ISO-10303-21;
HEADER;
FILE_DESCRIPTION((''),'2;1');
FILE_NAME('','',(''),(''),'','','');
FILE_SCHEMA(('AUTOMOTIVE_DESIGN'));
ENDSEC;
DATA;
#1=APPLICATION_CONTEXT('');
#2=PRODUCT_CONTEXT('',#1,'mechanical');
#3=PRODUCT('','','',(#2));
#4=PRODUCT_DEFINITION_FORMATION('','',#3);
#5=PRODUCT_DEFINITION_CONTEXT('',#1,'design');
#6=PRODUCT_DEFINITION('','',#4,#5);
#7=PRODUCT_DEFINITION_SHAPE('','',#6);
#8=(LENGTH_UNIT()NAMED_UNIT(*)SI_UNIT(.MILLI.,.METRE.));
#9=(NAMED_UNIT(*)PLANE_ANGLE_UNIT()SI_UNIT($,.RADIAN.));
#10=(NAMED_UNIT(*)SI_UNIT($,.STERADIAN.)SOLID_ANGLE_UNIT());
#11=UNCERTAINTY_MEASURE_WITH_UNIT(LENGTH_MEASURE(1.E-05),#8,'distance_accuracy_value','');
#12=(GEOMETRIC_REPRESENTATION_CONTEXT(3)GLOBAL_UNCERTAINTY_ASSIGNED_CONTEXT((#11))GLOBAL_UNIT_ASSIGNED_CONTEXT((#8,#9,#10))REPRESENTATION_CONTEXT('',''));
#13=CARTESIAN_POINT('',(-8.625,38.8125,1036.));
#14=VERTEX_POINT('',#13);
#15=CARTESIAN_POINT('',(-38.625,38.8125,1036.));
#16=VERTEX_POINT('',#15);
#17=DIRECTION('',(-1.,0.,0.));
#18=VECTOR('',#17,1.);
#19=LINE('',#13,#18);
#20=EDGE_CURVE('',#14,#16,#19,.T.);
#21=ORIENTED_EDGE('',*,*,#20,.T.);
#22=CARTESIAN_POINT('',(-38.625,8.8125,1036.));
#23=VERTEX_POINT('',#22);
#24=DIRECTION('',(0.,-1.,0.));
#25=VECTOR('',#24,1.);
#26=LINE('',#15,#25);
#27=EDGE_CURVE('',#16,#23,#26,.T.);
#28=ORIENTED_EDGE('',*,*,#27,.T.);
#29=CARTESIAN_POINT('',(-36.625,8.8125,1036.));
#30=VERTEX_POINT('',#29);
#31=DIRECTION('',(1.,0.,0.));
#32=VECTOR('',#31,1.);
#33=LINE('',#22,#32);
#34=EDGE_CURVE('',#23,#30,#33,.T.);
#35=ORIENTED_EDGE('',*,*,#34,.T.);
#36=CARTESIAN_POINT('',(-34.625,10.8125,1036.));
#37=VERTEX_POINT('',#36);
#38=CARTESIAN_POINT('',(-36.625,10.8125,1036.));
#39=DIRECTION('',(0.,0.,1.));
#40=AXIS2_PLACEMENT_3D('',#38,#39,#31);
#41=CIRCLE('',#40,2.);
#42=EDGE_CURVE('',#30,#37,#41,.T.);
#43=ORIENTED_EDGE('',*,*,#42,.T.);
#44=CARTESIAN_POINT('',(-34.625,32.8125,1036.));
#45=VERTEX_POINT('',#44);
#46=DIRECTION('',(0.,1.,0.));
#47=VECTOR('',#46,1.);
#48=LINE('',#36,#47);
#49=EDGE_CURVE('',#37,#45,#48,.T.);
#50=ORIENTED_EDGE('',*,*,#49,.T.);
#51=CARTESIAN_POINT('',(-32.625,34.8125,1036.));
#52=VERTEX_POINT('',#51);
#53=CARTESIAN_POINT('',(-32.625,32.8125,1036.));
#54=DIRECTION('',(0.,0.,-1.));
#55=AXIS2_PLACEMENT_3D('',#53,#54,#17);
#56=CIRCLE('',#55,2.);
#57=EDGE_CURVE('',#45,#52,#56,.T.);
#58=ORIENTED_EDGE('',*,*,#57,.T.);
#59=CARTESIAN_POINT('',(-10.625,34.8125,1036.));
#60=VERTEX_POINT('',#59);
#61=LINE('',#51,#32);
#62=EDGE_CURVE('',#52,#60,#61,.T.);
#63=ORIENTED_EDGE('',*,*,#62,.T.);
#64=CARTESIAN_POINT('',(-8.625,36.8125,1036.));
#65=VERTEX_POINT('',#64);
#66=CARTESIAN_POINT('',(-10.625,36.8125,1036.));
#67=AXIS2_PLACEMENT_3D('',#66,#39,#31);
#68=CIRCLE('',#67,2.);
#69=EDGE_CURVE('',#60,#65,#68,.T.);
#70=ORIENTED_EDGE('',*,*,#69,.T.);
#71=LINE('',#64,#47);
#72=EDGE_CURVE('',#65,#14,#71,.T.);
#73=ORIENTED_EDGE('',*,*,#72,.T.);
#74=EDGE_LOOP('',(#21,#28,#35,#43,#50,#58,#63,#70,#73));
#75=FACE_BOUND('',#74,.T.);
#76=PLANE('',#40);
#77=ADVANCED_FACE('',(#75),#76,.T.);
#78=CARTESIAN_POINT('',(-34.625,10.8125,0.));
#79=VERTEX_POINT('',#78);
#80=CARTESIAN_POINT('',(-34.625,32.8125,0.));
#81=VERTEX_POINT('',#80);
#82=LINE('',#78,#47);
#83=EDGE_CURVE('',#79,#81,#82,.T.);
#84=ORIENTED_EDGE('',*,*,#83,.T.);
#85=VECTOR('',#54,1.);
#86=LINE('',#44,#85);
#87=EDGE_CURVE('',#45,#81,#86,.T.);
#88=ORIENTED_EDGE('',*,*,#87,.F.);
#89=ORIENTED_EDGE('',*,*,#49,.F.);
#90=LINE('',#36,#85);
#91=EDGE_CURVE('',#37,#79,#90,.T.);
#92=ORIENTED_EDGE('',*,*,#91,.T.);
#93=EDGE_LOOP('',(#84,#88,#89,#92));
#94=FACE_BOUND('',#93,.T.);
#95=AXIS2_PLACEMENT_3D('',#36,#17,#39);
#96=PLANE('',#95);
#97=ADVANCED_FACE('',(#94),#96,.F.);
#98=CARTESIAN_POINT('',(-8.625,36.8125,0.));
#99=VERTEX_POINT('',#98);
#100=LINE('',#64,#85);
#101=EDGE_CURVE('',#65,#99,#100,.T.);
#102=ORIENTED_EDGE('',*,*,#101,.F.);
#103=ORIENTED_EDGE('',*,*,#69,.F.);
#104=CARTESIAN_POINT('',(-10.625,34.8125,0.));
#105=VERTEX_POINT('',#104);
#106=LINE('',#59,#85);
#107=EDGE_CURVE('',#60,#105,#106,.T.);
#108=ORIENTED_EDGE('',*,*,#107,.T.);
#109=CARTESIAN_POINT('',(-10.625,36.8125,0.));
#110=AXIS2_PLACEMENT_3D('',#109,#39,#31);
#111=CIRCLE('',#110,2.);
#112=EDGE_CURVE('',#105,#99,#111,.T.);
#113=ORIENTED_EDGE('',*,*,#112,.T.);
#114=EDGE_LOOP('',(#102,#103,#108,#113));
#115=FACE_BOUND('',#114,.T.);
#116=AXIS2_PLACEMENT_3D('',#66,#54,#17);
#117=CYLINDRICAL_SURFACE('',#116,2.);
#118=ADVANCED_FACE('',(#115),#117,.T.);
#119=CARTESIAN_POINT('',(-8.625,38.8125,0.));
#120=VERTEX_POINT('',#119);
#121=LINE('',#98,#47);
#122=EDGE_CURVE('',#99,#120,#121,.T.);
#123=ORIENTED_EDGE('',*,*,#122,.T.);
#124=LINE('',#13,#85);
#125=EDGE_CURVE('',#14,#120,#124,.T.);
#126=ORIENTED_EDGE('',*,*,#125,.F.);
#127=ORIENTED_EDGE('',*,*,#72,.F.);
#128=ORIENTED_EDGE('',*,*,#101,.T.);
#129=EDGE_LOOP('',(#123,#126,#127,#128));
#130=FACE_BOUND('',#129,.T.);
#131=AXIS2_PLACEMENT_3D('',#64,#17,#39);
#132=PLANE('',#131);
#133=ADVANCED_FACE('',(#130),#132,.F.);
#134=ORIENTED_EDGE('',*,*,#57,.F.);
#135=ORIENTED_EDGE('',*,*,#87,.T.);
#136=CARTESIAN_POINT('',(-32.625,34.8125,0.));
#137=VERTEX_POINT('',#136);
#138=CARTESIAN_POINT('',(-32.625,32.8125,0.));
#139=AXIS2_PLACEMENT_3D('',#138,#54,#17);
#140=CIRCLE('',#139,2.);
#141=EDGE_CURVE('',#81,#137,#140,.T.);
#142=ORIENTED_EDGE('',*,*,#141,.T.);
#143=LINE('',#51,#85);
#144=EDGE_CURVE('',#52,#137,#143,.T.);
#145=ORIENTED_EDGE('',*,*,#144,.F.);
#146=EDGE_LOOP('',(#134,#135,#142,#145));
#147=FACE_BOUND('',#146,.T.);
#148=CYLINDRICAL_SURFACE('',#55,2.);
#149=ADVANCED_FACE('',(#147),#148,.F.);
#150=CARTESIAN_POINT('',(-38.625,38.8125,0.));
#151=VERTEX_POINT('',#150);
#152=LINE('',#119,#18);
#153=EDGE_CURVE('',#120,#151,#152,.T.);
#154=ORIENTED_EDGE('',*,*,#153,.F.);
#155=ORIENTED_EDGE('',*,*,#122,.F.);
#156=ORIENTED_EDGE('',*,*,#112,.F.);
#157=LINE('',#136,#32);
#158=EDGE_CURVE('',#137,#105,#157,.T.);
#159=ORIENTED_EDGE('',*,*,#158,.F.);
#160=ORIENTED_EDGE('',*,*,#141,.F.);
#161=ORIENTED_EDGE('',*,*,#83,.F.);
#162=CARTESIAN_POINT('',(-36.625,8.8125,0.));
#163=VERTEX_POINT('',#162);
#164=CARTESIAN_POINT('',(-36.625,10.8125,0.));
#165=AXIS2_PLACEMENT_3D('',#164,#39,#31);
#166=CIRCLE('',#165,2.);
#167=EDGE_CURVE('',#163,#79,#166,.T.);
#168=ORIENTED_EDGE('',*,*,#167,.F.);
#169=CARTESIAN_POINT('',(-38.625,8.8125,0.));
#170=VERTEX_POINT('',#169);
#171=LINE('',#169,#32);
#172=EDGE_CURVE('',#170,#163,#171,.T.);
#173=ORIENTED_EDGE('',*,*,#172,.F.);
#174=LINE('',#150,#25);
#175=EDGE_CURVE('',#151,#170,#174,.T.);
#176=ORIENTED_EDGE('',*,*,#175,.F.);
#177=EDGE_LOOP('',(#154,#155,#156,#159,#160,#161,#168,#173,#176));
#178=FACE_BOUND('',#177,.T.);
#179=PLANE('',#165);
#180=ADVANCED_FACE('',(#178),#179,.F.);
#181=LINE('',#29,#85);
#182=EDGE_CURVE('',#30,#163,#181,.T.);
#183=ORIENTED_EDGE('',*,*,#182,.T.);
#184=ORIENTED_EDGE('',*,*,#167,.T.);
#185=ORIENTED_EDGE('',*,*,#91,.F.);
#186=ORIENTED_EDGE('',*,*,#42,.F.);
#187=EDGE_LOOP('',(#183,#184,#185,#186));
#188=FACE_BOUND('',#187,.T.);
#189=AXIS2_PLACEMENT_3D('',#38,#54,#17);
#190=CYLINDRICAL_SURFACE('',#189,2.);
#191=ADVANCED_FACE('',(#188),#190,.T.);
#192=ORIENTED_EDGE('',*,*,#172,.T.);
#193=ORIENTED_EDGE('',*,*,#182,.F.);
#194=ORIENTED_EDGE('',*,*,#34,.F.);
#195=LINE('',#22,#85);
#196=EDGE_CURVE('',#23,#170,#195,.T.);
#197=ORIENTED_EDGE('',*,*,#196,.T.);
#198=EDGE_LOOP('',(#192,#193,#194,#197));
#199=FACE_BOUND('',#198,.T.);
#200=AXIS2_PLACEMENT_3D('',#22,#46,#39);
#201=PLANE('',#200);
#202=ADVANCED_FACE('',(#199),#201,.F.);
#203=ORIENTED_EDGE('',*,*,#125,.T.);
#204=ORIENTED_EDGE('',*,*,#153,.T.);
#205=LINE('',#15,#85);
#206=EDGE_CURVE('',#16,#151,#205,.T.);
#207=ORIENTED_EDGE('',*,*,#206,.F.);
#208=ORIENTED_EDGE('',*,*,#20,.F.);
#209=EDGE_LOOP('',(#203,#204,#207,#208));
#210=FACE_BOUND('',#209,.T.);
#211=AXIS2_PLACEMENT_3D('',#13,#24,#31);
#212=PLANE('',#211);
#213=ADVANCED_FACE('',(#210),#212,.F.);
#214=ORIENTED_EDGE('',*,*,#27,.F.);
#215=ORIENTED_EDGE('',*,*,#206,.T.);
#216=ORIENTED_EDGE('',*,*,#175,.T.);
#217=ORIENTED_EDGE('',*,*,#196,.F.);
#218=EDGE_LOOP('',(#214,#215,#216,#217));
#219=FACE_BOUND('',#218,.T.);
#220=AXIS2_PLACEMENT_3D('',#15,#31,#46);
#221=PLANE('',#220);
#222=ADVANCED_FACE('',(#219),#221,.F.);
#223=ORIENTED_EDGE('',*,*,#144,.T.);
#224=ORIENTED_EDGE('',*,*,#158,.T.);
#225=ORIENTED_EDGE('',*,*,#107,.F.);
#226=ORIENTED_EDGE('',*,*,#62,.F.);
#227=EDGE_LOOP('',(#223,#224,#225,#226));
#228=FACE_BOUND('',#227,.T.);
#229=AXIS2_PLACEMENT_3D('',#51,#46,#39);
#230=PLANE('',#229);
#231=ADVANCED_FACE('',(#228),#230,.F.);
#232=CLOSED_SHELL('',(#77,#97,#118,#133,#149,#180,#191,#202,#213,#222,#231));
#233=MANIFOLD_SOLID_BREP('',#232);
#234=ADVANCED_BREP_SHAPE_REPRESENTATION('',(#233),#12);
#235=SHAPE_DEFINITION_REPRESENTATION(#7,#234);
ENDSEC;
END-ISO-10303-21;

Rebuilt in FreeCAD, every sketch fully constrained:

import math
import FreeCAD as App
import Part
import Sketcher

V = App.Vector
Q = App.Units.Quantity

doc = App.newDocument("Part")
params = doc.addObject("Spreadsheet::Sheet", "Params")
for row, (alias, value) in enumerate([
    ("sketch1_radius", "2 mm"),
    ("sketch1_width", "30 mm"),
    ("sketch1_width2", "2 mm"),
    ("pad1_length", "1036 mm"),
], start=1):
    params.set(f"A{row}", alias)
    params.set(f"B{row}", "=" + value)
    params.setAlias(f"B{row}", alias)

body = doc.addObject("PartDesign::Body", "Body")

# Sketch on XY plane
sketch1 = body.newObject("Sketcher::SketchObject", "Sketch")
sketch1.AttachmentSupport = (doc.getObject("XY_Plane"), [""])
sketch1.MapMode = "FlatFace"
sketch1.addGeometry([
    Part.LineSegment(V(-8.6, 38.8, 0), V(-38.6, 38.8, 0)),  # 0
    Part.LineSegment(V(-38.6, 38.8, 0), V(-38.6, 8.8, 0)),  # 1
    Part.LineSegment(V(-38.6, 8.8, 0), V(-36.6, 8.8, 0)),  # 2
    Part.ArcOfCircle(Part.Circle(V(-36.6, 10.8, 0), V(0, 0, 1), 2), math.radians(-90), math.radians(0)),  # 3
    Part.LineSegment(V(-34.6, 10.8, 0), V(-34.6, 32.8, 0)),  # 4
    Part.ArcOfCircle(Part.Circle(V(-32.6, 32.8, 0), V(0, 0, 1), 2), math.radians(90), math.radians(180)),  # 5
    Part.LineSegment(V(-32.6, 34.8, 0), V(-10.6, 34.8, 0)),  # 6
    Part.ArcOfCircle(Part.Circle(V(-10.6, 36.8, 0), V(0, 0, 1), 2), math.radians(-90), math.radians(0)),  # 7
    Part.LineSegment(V(-8.6, 36.8, 0), V(-8.6, 38.8, 0)),  # 8
], False)
sketch1.addConstraint([
    Sketcher.Constraint("Coincident", 0, 2, 1, 1),
    Sketcher.Constraint("Coincident", 1, 2, 2, 1),
    Sketcher.Constraint("Tangent", 2, 2, 3, 1),
    Sketcher.Constraint("Tangent", 3, 2, 4, 1),
    Sketcher.Constraint("Tangent", 4, 2, 5, 2),
    Sketcher.Constraint("Tangent", 5, 1, 6, 1),
    Sketcher.Constraint("Tangent", 6, 2, 7, 1),
    Sketcher.Constraint("Tangent", 7, 2, 8, 1),
    Sketcher.Constraint("Coincident", 8, 2, 0, 1),
    Sketcher.Constraint("Horizontal", 0),
    Sketcher.Constraint("Vertical", 1),
    Sketcher.Constraint("Horizontal", 2),
    Sketcher.Constraint("Vertical", 4),
    Sketcher.Constraint("Horizontal", 6),
    Sketcher.Constraint("Vertical", 8),
    Sketcher.Constraint("Equal", 3, 5),
    Sketcher.Constraint("Equal", 5, 7),
    Sketcher.Constraint("Equal", 0, 1),
    Sketcher.Constraint("Equal", 6, 4),
    Sketcher.Constraint("Radius", 3, Q("2 mm")),
    Sketcher.Constraint("DistanceX", 0, 2, 0, 1, Q("30 mm")),
    Sketcher.Constraint("DistanceX", 2, 1, 2, 2, Q("2 mm")),
    Sketcher.Constraint("DistanceX", 3, 3, -1, 1, Q("36.625 mm")),
    Sketcher.Constraint("DistanceY", -1, 1, 3, 3, Q("10.8125 mm")),
])
sketch1.setExpression("Constraints[19]", "Params.sketch1_radius")
sketch1.setExpression("Constraints[20]", "Params.sketch1_width")
sketch1.setExpression("Constraints[21]", "Params.sketch1_width2")
pad1 = body.newObject("PartDesign::Pad", "Pad")
pad1.Profile = sketch1
pad1.setExpression("Length", "Params.pad1_length")

doc.recompute()
